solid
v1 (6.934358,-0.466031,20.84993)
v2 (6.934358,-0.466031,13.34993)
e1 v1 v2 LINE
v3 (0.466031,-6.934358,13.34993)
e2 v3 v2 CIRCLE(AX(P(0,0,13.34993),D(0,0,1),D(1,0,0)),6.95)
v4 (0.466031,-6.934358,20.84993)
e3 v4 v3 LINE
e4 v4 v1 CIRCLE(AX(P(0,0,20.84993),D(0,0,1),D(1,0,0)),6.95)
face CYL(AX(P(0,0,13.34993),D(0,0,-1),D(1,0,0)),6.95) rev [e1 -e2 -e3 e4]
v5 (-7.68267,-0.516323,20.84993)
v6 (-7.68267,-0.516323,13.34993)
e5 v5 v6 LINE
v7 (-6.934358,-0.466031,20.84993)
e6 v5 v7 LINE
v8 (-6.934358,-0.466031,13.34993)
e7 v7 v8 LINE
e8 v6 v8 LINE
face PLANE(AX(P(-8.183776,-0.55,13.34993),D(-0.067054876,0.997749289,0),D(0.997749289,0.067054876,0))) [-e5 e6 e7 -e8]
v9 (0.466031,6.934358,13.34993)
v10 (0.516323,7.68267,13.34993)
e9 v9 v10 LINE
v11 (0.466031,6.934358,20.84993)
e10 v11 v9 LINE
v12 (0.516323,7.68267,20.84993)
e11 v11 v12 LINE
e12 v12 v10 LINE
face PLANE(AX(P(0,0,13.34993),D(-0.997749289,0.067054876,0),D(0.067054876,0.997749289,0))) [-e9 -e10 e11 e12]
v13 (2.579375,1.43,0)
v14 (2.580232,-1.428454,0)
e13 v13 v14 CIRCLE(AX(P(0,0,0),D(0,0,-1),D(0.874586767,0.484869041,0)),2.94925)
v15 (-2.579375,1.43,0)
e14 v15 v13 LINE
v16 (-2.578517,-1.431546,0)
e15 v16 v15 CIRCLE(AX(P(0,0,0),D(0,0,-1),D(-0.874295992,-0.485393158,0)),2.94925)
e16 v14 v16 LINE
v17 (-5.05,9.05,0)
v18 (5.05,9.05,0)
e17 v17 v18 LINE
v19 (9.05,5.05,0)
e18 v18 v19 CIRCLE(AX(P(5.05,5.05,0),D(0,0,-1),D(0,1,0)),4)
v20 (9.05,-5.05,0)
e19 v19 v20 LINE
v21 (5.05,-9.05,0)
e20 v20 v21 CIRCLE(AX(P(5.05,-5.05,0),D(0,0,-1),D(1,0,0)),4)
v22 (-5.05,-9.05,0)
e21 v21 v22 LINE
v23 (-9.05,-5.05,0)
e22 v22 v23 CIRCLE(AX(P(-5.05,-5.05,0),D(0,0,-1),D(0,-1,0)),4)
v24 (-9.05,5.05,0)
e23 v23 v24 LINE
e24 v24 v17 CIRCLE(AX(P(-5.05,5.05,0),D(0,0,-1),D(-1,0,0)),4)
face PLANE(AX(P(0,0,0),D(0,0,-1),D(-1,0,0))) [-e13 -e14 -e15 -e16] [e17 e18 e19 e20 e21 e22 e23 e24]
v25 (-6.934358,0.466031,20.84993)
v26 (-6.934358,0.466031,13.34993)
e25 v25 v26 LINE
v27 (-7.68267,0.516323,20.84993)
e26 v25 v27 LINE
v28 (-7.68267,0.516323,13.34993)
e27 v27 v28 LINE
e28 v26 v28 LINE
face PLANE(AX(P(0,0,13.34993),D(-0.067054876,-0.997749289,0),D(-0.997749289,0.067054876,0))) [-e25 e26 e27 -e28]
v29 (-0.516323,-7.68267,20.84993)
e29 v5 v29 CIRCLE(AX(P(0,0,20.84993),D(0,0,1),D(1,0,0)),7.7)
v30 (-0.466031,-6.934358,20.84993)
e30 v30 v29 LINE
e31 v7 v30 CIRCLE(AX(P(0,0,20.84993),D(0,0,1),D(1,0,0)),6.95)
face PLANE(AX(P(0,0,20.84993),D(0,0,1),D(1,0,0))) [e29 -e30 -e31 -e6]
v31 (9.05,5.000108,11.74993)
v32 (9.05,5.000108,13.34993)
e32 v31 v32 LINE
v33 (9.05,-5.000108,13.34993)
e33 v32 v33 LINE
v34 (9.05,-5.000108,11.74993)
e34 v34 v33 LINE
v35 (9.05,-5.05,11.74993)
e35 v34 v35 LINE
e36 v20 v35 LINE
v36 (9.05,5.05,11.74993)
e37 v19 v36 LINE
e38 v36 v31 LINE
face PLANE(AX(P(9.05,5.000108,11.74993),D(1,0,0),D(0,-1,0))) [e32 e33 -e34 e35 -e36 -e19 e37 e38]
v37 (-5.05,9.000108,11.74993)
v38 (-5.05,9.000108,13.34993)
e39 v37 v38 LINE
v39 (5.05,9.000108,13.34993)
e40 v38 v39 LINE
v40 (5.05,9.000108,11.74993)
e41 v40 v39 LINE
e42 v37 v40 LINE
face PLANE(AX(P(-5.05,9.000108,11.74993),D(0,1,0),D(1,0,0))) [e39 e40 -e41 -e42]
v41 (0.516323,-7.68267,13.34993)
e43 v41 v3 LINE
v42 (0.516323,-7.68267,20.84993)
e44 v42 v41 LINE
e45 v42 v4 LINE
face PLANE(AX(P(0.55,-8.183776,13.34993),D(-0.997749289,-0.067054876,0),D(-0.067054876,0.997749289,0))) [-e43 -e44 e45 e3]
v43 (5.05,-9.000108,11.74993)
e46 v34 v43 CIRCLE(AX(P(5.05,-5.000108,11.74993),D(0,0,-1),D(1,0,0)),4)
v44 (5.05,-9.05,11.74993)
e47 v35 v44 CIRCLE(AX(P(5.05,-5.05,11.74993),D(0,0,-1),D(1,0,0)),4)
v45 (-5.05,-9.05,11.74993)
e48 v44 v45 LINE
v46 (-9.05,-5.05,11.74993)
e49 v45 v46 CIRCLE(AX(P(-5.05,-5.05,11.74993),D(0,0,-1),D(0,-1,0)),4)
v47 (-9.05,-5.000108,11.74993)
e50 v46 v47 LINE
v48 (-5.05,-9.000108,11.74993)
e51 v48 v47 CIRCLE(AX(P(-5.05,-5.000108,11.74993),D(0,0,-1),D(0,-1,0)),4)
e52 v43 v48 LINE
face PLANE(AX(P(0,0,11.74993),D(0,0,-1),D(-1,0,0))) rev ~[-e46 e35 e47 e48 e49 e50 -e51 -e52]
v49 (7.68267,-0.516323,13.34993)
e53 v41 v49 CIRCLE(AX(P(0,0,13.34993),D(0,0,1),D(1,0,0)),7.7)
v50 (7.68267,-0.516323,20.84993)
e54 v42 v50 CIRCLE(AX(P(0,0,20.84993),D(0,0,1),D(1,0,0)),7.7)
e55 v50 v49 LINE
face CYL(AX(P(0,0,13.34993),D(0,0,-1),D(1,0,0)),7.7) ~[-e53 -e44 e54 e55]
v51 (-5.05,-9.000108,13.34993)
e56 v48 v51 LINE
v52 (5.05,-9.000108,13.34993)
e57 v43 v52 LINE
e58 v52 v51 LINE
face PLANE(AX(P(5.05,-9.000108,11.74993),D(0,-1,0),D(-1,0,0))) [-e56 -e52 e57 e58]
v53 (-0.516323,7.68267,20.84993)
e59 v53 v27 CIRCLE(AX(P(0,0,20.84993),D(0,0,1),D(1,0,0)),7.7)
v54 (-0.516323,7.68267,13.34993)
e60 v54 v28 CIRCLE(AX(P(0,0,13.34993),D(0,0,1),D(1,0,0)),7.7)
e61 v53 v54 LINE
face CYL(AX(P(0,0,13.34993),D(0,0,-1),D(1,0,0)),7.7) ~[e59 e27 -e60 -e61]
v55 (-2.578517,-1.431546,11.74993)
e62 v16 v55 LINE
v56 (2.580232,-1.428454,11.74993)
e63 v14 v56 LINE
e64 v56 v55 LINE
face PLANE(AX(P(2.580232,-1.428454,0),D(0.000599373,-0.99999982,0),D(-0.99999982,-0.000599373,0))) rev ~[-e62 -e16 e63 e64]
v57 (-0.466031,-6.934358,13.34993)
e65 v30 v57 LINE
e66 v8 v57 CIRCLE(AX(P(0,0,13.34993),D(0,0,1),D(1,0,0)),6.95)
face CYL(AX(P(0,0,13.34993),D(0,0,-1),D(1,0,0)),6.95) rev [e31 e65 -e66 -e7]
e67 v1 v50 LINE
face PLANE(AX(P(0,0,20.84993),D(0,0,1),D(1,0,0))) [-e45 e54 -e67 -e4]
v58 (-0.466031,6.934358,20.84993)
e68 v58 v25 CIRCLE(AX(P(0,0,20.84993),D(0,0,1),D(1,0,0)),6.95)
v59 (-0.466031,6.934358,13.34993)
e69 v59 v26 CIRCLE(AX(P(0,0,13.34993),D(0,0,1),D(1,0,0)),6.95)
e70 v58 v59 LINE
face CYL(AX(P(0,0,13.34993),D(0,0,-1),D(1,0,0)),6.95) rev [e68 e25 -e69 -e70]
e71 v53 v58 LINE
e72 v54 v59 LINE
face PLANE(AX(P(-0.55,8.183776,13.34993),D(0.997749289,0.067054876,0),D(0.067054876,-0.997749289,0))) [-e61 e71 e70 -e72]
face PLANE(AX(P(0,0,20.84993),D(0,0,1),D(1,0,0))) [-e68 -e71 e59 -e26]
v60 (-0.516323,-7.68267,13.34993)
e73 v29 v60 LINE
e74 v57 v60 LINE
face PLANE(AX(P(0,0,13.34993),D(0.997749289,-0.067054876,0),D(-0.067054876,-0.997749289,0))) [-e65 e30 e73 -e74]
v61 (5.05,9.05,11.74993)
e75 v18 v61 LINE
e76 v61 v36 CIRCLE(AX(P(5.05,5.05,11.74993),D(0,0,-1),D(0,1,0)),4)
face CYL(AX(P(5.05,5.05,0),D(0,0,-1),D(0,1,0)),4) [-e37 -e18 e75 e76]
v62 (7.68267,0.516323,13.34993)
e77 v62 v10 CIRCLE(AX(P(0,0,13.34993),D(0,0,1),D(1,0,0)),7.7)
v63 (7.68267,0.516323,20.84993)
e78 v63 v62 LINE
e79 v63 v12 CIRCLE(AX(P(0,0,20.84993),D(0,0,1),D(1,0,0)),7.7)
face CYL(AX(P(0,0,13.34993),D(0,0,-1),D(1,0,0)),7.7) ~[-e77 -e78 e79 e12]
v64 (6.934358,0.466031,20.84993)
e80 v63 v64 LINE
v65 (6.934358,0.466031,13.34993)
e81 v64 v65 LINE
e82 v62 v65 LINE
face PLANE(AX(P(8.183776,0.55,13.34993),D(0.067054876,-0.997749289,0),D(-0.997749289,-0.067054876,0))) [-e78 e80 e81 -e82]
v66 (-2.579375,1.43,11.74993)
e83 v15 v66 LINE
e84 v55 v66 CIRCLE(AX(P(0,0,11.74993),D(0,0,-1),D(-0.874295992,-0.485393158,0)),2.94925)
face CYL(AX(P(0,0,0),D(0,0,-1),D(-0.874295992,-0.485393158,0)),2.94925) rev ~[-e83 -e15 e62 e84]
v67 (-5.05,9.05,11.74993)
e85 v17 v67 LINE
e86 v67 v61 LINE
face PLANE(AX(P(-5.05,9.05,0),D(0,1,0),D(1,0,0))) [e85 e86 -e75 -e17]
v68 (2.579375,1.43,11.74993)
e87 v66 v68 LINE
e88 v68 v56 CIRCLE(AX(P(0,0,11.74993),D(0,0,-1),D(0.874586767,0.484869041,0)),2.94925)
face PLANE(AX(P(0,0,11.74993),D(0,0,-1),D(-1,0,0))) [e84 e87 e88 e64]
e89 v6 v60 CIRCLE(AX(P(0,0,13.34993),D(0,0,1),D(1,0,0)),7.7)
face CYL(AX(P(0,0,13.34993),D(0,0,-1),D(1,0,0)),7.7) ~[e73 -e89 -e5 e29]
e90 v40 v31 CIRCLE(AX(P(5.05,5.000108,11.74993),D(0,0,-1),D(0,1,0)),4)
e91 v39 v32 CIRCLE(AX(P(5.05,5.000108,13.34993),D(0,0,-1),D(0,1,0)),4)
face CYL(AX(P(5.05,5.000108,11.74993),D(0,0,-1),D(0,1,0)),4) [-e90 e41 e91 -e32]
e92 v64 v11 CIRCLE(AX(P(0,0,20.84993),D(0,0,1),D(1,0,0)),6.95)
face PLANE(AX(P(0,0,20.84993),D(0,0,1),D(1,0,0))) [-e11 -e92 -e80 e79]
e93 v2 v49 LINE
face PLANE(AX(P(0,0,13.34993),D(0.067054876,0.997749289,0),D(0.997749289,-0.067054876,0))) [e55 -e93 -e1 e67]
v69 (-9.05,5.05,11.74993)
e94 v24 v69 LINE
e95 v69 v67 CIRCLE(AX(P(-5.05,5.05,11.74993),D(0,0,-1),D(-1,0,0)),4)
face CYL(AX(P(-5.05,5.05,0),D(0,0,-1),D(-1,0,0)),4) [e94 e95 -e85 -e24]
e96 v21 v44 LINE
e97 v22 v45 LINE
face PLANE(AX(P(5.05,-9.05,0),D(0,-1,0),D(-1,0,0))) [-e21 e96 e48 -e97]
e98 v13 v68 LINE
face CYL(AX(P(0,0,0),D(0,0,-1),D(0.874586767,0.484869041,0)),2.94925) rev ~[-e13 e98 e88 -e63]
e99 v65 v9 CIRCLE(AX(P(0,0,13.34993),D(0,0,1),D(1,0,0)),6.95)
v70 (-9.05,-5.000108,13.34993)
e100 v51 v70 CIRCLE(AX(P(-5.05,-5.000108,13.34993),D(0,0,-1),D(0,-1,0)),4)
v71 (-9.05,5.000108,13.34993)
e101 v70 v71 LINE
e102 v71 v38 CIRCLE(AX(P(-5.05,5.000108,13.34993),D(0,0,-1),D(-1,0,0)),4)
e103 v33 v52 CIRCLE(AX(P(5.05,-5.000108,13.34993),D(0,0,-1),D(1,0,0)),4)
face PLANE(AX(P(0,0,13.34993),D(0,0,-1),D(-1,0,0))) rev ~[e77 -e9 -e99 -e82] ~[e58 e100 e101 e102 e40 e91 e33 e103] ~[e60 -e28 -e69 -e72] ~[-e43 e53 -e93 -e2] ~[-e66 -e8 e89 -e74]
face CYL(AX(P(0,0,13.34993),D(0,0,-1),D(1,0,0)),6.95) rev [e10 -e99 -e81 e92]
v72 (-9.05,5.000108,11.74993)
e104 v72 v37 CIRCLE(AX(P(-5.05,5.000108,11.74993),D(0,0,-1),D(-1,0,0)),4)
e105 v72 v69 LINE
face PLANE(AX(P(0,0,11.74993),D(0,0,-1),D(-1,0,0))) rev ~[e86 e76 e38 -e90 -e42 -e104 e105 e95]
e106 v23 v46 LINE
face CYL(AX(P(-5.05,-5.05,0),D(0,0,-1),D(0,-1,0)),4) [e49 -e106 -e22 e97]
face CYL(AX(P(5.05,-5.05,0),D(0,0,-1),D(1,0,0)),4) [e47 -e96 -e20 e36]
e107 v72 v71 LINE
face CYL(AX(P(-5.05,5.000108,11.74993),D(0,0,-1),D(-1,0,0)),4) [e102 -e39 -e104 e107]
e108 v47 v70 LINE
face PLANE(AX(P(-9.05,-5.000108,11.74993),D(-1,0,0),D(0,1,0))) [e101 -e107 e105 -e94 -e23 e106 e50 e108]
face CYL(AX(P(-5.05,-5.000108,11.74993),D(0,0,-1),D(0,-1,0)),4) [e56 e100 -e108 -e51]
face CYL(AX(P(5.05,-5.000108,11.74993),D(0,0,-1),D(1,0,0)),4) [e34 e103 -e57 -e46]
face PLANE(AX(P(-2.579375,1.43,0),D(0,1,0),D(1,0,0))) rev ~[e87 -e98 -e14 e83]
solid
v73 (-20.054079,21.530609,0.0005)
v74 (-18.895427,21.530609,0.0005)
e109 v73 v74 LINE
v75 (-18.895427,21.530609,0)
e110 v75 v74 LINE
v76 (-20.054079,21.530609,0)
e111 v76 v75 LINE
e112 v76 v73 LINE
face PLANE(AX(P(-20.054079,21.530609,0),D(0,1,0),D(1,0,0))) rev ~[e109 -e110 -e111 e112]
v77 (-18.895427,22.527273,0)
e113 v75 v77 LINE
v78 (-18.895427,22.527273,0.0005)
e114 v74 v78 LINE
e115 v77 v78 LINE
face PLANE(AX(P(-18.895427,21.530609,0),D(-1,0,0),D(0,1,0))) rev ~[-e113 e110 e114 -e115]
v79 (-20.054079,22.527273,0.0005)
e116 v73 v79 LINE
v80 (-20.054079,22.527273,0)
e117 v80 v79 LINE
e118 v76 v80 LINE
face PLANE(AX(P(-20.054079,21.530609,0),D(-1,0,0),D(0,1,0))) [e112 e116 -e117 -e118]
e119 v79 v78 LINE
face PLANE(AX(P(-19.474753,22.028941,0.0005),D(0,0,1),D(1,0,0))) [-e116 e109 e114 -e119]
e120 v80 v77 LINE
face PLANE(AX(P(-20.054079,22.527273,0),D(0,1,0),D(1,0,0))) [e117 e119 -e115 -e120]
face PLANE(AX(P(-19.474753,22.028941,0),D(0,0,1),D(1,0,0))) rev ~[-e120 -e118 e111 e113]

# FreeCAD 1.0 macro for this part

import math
import FreeCAD as App
import Part
import Sketcher
from FreeCAD import Vector


def add_polygon(sketch, points):
    """Adds a closed chain of lines whose ends are joined by coincident constraints."""
    first, n = sketch.GeometryCount, len(points)
    for a, b in zip(points, points[1:] + points[:1]):
        sketch.addGeometry(Part.LineSegment(App.Vector(*a, 0), App.Vector(*b, 0)), False)
    for i in range(n):
        sketch.addConstraint(Sketcher.Constraint("Coincident", first + i, 2, first + (i + 1) % n, 1))

doc = App.newDocument("Part")
body = doc.addObject("PartDesign::Body", "Body")

# Sketch on XY plane
sketch1 = doc.addObject("Sketcher::SketchObject", "Sketch")
body.addObject(sketch1)
sketch1.AttachmentSupport = (doc.XY_Plane, [""])
sketch1.MapMode = "FlatFace"
add_polygon(sketch1, [(-20.1, 22.5), (-20.1, 21.5), (-18.9, 21.5), (-18.9, 22.5)])  # lines 0-3
sketch1.addConstraint(Sketcher.Constraint("Vertical", 0))
sketch1.addConstraint(Sketcher.Constraint("Horizontal", 1))
sketch1.addConstraint(Sketcher.Constraint("Vertical", 2))
sketch1.addConstraint(Sketcher.Constraint("Horizontal", 3))
sketch1.addConstraint(Sketcher.Constraint("DistanceX", 1, 1, 1, 2, 1.158653))
sketch1.addConstraint(Sketcher.Constraint("DistanceY", 0, 2, 0, 1, 0.996663))
sketch1.addConstraint(Sketcher.Constraint("DistanceX", 0, 2, -1, 1, 20.054079))
sketch1.addConstraint(Sketcher.Constraint("DistanceY", -1, 1, 0, 2, 21.530609))
pad1 = doc.addObject("PartDesign::Pad", "Pad")
body.addObject(pad1)
pad1.Profile = sketch1
pad1.Length = 0.0005
body2 = doc.addObject("PartDesign::Body", "Body001")

# Sketch on XY plane
sketch2 = doc.addObject("Sketcher::SketchObject", "Sketch001")
body2.addObject(sketch2)
sketch2.AttachmentSupport = (doc.getObject("XY_Plane001"), [""])
sketch2.MapMode = "FlatFace"
sketch2.addGeometry(Part.LineSegment(Vector(5, 9.1, 0), Vector(-5, 9.1, 0)), False)
sketch2.addGeometry(Part.ArcOfCircle(Part.Circle(Vector(-5.1, 5.1, 0), Vector(0, 0, 1), 4), math.radians(90), math.radians(180)), False)
sketch2.addGeometry(Part.LineSegment(Vector(-9.1, 5, 0), Vector(-9.1, -5, 0)), False)
sketch2.addGeometry(Part.ArcOfCircle(Part.Circle(Vector(-5.1, -5.1, 0), Vector(0, 0, 1), 4), math.radians(180), math.radians(270)), False)
sketch2.addGeometry(Part.LineSegment(Vector(-5, -9.1, 0), Vector(5, -9.1, 0)), False)
sketch2.addGeometry(Part.ArcOfCircle(Part.Circle(Vector(5.1, -5.1, 0), Vector(0, 0, 1), 4), math.radians(-90), math.radians(0)), False)
sketch2.addGeometry(Part.LineSegment(Vector(9.1, -5, 0), Vector(9.1, 5, 0)), False)
sketch2.addGeometry(Part.ArcOfCircle(Part.Circle(Vector(5.1, 5.1, 0), Vector(0, 0, 1), 4), math.radians(0), math.radians(90)), False)
sketch2.addGeometry(Part.LineSegment(Vector(-2.6, 1.4, 0), Vector(2.6, 1.4, 0)), False)
sketch2.addGeometry(Part.ArcOfCircle(Part.Circle(Vector(0, 0, 0), Vector(0, 0, 1), 2.9), math.radians(-29), math.radians(29)), False)
sketch2.addGeometry(Part.LineSegment(Vector(2.6, -1.4, 0), Vector(-2.6, -1.4, 0)), False)
sketch2.addGeometry(Part.ArcOfCircle(Part.Circle(Vector(0, 0, 0), Vector(0, 0, 1), 2.9), math.radians(151), math.radians(209)), False)
sketch2.addConstraint(Sketcher.Constraint("Tangent", 0, 2, 1, 1))
sketch2.addConstraint(Sketcher.Constraint("Tangent", 1, 2, 2, 1))
sketch2.addConstraint(Sketcher.Constraint("Tangent", 2, 2, 3, 1))
sketch2.addConstraint(Sketcher.Constraint("Tangent", 3, 2, 4, 1))
sketch2.addConstraint(Sketcher.Constraint("Tangent", 4, 2, 5, 1))
sketch2.addConstraint(Sketcher.Constraint("Tangent", 5, 2, 6, 1))
sketch2.addConstraint(Sketcher.Constraint("Tangent", 6, 2, 7, 1))
sketch2.addConstraint(Sketcher.Constraint("Tangent", 7, 2, 0, 1))
sketch2.addConstraint(Sketcher.Constraint("Coincident", 8, 2, 9, 2))
sketch2.addConstraint(Sketcher.Constraint("Coincident", 9, 1, 10, 1))
sketch2.addConstraint(Sketcher.Constraint("Coincident", 10, 2, 11, 2))
sketch2.addConstraint(Sketcher.Constraint("Coincident", 11, 1, 8, 1))
sketch2.addConstraint(Sketcher.Constraint("Horizontal", 0))
sketch2.addConstraint(Sketcher.Constraint("Vertical", 2))
sketch2.addConstraint(Sketcher.Constraint("Horizontal", 4))
sketch2.addConstraint(Sketcher.Constraint("Vertical", 6))
sketch2.addConstraint(Sketcher.Constraint("Horizontal", 8))
sketch2.addConstraint(Sketcher.Constraint("Coincident", 9, 3, -1, 1))
sketch2.addConstraint(Sketcher.Constraint("Coincident", 11, 3, -1, 1))
sketch2.addConstraint(Sketcher.Constraint("Equal", 1, 3))
sketch2.addConstraint(Sketcher.Constraint("Equal", 3, 5))
sketch2.addConstraint(Sketcher.Constraint("Equal", 5, 7))
sketch2.addConstraint(Sketcher.Constraint("Equal", 9, 11))
sketch2.addConstraint(Sketcher.Constraint("Symmetric", 1, 3, 5, 3, -1, 1))
sketch2.addConstraint(Sketcher.Constraint("Equal", 4, 2))
sketch2.addConstraint(Sketcher.Constraint("Radius", 1, 4.0))
sketch2.addConstraint(Sketcher.Constraint("DistanceX", 0, 2, 0, 1, 10.1))
sketch2.addConstraint(Sketcher.Constraint("DistanceY", -1, 1, 8, 2, 1.43))
sketch2.addConstraint(Sketcher.Constraint("Radius", 9, 2.94925))
sketch2.addConstraint(Sketcher.Constraint("Distance", 10, 5.15875))
sketch2.addConstraint(Sketcher.Constraint("DistanceX", -1, 1, 9, 1, 2.580232))
pad2 = doc.addObject("PartDesign::Pad", "Pad001")
body2.addObject(pad2)
pad2.Profile = sketch2
pad2.Length = 11.74993

# Sketch on XY plane
sketch3 = doc.addObject("Sketcher::SketchObject", "Sketch002")
body2.addObject(sketch3)
sketch3.AttachmentSupport = (doc.getObject("XY_Plane001"), [""])
sketch3.MapMode = "FlatFace"
sketch3.AttachmentOffset = App.Placement(Vector(0, 0, 11.74993), App.Rotation())
sketch3.addGeometry(Part.LineSegment(Vector(5, 9, 0), Vector(-5, 9, 0)), False)
sketch3.addGeometry(Part.ArcOfCircle(Part.Circle(Vector(-5.1, 5, 0), Vector(0, 0, 1), 4), math.radians(90), math.radians(180)), False)
sketch3.addGeometry(Part.LineSegment(Vector(-9.1, 5, 0), Vector(-9.1, -5, 0)), False)
sketch3.addGeometry(Part.ArcOfCircle(Part.Circle(Vector(-5.1, -5, 0), Vector(0, 0, 1), 4), math.radians(180), math.radians(270)), False)
sketch3.addGeometry(Part.LineSegment(Vector(-5, -9, 0), Vector(5, -9, 0)), False)
sketch3.addGeometry(Part.ArcOfCircle(Part.Circle(Vector(5.1, -5, 0), Vector(0, 0, 1), 4), math.radians(-90), math.radians(0)), False)
sketch3.addGeometry(Part.LineSegment(Vector(9.1, -5, 0), Vector(9.1, 5, 0)), False)
sketch3.addGeometry(Part.ArcOfCircle(Part.Circle(Vector(5.1, 5, 0), Vector(0, 0, 1), 4), math.radians(0), math.radians(90)), False)
sketch3.addConstraint(Sketcher.Constraint("Tangent", 0, 2, 1, 1))
sketch3.addConstraint(Sketcher.Constraint("Tangent", 1, 2, 2, 1))
sketch3.addConstraint(Sketcher.Constraint("Tangent", 2, 2, 3, 1))
sketch3.addConstraint(Sketcher.Constraint("Tangent", 3, 2, 4, 1))
sketch3.addConstraint(Sketcher.Constraint("Tangent", 4, 2, 5, 1))
sketch3.addConstraint(Sketcher.Constraint("Tangent", 5, 2, 6, 1))
sketch3.addConstraint(Sketcher.Constraint("Tangent", 6, 2, 7, 1))
sketch3.addConstraint(Sketcher.Constraint("Tangent", 7, 2, 0, 1))
sketch3.addConstraint(Sketcher.Constraint("Horizontal", 0))
sketch3.addConstraint(Sketcher.Constraint("Vertical", 2))
sketch3.addConstraint(Sketcher.Constraint("Horizontal", 4))
sketch3.addConstraint(Sketcher.Constraint("Vertical", 6))
sketch3.addConstraint(Sketcher.Constraint("Equal", 1, 3))
sketch3.addConstraint(Sketcher.Constraint("Equal", 3, 5))
sketch3.addConstraint(Sketcher.Constraint("Equal", 5, 7))
sketch3.addConstraint(Sketcher.Constraint("Symmetric", 1, 3, 5, 3, -1, 1))
sketch3.addConstraint(Sketcher.Constraint("Radius", 1, 4.0))
sketch3.addConstraint(Sketcher.Constraint("DistanceX", 0, 2, 0, 1, 10.1))
sketch3.addConstraint(Sketcher.Constraint("DistanceY", 2, 2, 2, 1, 10.000217))
pad3 = doc.addObject("PartDesign::Pad", "Pad002")
body2.addObject(pad3)
pad3.Profile = sketch3
pad3.Length = 1.6

# Sketch on XY plane
sketch4 = doc.addObject("Sketcher::SketchObject", "Sketch003")
body2.addObject(sketch4)
sketch4.AttachmentSupport = (doc.getObject("XY_Plane001"), [""])
sketch4.MapMode = "FlatFace"
sketch4.AttachmentOffset = App.Placement(Vector(0, 0, 13.34993), App.Rotation())
sketch4.addGeometry(Part.Circle(Vector(0, 0, 0), Vector(0, 0, 1), 8), False)
sketch4.addConstraint(Sketcher.Constraint("Coincident", 0, 3, -1, 1))
sketch4.addConstraint(Sketcher.Constraint("Diameter", 0, 15.4))
pad4 = doc.addObject("PartDesign::Pad", "Pad003")
body2.addObject(pad4)
pad4.Profile = sketch4
pad4.Length = 7.5

# Sketch on XY plane
sketch5 = doc.addObject("Sketcher::SketchObject", "Sketch004")
body2.addObject(sketch5)
sketch5.AttachmentSupport = (doc.getObject("XY_Plane001"), [""])
sketch5.MapMode = "FlatFace"
sketch5.AttachmentOffset = App.Placement(Vector(0, 0, 13.34993), App.Rotation())
sketch5.addGeometry(Part.Circle(Vector(0, 0, 0), Vector(0, 0, 1), 7), False)
sketch5.addConstraint(Sketcher.Constraint("Coincident", 0, 3, -1, 1))
sketch5.addConstraint(Sketcher.Constraint("Diameter", 0, 13.9))
pocket1 = doc.addObject("PartDesign::Pocket", "Pocket")
body2.addObject(pocket1)
pocket1.Profile = sketch5
pocket1.Length = 7.5
pocket1.Reversed = True

# Sketch on XY plane
sketch6 = doc.addObject("Sketcher::SketchObject", "Sketch005")
body2.addObject(sketch6)
sketch6.AttachmentSupport = (doc.getObject("XY_Plane001"), [""])
sketch6.MapMode = "FlatFace"
sketch6.AttachmentOffset = App.Placement(Vector(0, 0, 13.34993), App.Rotation())
add_polygon(sketch6, [(-0.6, 8.2), (0, 0), (0.6, 8.2)])  # lines 0-2
sketch6.addConstraint(Sketcher.Constraint("Horizontal", 2))
sketch6.addConstraint(Sketcher.Constraint("Coincident", 0, 2, -1, 1))
sketch6.addConstraint(Sketcher.Constraint("Equal", 0, 1))
sketch6.addConstraint(Sketcher.Constraint("DistanceX", 2, 2, 2, 1, 1.1))
sketch6.addConstraint(Sketcher.Constraint("Distance", 0, 8.202237))
pocket2 = doc.addObject("PartDesign::Pocket", "Pocket001")
body2.addObject(pocket2)
pocket2.Profile = sketch6
pocket2.Length = 7.5
pocket2.Reversed = True
doc.recompute()

polarpattern = doc.addObject("PartDesign::PolarPattern", "PolarPattern")
body2.addObject(polarpattern)
polarpattern.Originals = [pocket2]
polarpattern.Axis = (doc.getObject("Z_Axis001"), [""])
polarpattern.Angle = 360
polarpattern.Occurrences = 4
body2.Tip = polarpattern

doc.recompute()
